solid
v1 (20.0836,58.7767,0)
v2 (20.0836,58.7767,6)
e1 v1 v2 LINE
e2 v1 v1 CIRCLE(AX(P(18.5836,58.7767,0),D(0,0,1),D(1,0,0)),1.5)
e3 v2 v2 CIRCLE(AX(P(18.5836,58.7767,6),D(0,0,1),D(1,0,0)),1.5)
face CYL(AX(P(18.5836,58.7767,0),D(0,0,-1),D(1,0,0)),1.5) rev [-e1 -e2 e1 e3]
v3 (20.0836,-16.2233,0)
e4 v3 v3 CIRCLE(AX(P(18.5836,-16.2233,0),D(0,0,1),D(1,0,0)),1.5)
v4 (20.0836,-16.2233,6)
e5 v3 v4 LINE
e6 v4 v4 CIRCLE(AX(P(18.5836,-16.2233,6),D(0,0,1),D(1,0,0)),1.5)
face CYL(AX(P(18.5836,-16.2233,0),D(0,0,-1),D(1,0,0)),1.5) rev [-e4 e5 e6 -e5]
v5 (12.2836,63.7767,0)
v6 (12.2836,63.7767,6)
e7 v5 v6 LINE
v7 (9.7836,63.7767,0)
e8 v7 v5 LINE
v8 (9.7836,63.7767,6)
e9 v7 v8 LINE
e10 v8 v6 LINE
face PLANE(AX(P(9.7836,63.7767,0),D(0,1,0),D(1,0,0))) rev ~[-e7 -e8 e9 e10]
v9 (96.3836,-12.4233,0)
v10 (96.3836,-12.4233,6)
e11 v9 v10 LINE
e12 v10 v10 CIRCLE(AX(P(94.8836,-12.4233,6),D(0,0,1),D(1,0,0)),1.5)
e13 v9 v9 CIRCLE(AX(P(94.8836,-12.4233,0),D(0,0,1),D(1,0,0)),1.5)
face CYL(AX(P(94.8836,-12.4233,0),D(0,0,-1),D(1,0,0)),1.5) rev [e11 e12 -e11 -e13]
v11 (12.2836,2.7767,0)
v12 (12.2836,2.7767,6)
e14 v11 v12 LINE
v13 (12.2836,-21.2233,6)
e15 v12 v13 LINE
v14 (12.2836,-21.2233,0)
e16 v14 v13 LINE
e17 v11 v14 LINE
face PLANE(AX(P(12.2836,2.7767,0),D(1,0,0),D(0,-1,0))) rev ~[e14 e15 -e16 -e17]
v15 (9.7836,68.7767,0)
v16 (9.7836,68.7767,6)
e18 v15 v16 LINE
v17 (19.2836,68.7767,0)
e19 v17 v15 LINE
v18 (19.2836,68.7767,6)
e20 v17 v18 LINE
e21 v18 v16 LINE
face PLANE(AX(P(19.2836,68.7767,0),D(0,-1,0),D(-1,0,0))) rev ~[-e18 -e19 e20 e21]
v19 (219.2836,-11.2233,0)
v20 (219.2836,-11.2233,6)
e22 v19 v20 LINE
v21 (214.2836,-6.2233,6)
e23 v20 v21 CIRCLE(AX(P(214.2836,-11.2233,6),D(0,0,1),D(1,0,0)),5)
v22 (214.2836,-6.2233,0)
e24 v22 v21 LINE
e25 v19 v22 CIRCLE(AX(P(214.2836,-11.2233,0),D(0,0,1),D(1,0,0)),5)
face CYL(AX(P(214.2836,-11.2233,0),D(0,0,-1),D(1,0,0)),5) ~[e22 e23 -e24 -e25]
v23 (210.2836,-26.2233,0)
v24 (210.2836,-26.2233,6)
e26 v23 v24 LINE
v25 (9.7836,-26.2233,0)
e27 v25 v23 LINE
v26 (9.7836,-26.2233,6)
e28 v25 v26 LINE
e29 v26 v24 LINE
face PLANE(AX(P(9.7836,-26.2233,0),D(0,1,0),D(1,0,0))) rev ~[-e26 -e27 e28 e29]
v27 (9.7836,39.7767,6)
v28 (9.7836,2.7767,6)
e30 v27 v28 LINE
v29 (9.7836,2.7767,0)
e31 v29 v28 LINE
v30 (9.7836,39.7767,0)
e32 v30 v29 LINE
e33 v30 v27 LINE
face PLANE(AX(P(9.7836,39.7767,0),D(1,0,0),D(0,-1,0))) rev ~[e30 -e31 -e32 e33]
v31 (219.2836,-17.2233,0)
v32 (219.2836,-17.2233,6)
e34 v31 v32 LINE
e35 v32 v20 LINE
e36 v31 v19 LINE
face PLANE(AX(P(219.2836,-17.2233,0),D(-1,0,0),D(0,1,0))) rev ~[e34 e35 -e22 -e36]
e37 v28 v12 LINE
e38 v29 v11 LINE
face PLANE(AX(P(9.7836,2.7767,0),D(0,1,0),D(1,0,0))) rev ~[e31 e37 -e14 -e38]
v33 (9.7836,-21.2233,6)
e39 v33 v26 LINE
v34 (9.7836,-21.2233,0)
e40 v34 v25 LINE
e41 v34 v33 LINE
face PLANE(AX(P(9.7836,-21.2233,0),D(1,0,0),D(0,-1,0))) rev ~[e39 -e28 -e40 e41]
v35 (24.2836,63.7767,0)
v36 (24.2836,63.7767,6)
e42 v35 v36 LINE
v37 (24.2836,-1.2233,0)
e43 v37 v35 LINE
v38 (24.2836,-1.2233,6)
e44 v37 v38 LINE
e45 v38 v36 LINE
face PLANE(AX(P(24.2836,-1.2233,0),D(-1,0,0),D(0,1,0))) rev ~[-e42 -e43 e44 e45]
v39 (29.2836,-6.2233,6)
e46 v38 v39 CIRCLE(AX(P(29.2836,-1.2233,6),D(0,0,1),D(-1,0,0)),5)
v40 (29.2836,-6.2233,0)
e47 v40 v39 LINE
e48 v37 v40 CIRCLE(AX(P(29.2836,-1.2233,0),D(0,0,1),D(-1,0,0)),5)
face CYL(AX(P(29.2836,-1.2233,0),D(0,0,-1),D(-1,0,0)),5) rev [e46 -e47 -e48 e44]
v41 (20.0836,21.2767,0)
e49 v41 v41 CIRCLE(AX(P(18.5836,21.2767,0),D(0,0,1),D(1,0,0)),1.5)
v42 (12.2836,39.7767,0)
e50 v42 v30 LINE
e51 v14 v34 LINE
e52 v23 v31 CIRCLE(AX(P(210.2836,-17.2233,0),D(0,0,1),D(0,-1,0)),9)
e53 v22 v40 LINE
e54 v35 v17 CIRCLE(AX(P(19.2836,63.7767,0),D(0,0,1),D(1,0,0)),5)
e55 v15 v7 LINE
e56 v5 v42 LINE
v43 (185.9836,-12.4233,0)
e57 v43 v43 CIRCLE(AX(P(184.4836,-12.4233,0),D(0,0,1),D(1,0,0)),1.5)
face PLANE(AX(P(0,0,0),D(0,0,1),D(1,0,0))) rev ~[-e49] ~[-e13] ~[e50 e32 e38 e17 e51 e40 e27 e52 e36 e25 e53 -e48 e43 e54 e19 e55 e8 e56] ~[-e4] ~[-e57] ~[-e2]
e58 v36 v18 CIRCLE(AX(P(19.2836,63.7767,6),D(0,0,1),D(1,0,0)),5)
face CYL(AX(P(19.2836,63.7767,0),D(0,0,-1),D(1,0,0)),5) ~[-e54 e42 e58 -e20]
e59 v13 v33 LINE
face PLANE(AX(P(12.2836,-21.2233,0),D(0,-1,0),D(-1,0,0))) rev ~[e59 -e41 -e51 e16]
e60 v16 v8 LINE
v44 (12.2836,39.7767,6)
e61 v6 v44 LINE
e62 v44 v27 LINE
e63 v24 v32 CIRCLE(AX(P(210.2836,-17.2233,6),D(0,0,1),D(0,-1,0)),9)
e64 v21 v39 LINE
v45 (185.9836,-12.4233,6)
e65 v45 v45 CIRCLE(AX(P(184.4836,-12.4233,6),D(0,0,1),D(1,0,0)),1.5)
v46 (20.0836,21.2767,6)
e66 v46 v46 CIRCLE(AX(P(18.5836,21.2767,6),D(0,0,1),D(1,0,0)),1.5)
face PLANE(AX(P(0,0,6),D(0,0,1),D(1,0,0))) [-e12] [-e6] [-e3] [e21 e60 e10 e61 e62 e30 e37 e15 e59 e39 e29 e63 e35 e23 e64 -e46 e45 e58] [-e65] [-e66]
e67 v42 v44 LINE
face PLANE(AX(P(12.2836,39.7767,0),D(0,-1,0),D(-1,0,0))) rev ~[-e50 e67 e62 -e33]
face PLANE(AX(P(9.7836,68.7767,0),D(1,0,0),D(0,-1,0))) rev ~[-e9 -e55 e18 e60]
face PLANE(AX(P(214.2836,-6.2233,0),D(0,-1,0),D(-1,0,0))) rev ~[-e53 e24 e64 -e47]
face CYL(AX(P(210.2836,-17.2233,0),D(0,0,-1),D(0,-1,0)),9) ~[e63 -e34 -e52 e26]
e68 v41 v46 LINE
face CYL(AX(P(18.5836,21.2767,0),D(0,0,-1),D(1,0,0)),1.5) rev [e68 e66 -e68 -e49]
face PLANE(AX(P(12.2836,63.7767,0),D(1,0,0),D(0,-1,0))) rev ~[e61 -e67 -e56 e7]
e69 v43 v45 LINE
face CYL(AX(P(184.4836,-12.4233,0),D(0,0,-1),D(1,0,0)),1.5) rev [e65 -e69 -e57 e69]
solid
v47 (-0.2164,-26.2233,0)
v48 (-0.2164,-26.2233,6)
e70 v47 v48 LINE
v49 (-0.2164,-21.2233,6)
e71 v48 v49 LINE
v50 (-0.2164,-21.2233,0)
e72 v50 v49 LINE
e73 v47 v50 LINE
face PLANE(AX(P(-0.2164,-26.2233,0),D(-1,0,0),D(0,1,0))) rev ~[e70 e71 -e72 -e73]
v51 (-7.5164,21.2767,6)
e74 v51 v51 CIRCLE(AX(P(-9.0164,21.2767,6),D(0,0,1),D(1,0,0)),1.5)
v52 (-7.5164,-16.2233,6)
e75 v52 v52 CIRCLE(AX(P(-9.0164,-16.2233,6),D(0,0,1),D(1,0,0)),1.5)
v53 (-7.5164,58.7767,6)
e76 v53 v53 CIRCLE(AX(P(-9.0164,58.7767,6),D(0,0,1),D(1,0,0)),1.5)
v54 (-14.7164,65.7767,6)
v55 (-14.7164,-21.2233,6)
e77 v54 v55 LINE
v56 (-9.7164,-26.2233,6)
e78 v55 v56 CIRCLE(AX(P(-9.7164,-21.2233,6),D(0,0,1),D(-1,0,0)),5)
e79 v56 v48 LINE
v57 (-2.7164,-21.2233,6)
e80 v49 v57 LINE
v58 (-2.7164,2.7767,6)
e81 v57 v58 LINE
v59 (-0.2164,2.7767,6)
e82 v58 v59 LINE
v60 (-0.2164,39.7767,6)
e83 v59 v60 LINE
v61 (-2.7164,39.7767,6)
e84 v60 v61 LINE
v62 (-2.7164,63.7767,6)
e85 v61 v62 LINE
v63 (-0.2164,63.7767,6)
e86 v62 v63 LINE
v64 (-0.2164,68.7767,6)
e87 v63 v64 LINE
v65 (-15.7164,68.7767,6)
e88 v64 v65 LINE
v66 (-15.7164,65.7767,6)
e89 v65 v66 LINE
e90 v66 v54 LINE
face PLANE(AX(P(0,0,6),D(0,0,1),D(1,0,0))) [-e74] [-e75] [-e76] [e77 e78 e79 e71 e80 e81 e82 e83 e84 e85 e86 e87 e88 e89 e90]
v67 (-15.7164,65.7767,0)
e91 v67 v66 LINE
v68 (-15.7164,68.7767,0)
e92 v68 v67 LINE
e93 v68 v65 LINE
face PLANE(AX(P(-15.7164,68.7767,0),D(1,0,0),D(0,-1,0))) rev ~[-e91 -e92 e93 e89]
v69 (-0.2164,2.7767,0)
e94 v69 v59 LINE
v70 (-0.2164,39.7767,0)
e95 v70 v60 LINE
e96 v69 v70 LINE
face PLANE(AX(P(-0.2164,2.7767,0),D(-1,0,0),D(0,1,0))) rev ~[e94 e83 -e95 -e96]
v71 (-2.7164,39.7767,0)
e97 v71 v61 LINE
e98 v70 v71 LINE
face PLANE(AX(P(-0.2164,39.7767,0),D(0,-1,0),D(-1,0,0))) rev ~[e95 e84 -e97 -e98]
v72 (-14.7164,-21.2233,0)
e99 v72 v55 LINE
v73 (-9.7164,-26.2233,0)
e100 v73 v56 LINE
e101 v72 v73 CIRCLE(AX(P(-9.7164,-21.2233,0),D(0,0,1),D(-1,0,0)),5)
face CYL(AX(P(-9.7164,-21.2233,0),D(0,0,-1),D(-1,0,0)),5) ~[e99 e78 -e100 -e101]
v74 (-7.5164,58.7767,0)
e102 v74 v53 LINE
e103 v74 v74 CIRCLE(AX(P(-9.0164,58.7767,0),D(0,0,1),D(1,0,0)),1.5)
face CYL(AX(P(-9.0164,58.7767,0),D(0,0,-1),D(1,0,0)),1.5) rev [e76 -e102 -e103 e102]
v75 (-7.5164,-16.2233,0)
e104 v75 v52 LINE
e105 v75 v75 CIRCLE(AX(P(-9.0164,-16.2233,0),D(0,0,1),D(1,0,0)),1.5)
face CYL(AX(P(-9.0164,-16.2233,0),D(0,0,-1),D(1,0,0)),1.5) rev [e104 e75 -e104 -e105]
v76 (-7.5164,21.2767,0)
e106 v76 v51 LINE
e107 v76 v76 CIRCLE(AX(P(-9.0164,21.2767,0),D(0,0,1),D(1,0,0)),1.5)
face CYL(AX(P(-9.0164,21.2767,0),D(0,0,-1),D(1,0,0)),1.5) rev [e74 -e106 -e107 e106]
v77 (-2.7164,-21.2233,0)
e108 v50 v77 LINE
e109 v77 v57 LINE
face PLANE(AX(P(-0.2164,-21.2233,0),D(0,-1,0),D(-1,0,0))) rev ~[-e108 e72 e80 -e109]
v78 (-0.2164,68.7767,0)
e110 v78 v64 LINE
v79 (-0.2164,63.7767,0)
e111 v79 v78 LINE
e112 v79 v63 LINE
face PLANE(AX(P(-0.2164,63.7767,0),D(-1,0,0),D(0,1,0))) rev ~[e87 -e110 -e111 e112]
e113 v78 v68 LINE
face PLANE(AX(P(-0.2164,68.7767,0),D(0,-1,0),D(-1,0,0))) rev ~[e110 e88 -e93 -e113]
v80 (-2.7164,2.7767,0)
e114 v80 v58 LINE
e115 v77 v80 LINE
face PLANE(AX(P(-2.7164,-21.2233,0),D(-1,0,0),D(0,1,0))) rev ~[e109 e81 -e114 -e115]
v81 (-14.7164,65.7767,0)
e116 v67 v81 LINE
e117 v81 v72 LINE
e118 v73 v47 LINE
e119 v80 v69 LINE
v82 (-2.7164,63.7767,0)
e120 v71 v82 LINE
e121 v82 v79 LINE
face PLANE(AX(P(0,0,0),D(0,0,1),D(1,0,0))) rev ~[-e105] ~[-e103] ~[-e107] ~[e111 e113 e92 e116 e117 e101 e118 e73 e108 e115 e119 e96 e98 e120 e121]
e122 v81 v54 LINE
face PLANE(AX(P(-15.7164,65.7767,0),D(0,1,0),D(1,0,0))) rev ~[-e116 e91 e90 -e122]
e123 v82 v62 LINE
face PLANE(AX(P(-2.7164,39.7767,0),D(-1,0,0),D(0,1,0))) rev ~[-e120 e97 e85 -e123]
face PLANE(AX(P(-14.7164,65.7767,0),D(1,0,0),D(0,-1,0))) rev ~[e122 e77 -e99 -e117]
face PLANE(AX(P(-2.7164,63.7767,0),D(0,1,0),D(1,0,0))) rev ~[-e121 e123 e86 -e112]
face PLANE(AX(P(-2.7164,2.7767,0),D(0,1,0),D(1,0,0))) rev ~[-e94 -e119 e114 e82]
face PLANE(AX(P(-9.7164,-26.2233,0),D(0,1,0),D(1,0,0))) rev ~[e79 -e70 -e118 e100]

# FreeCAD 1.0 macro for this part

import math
import FreeCAD as App
import Part
import Sketcher

V = App.Vector

doc = App.newDocument("Part")
body = doc.addObject("PartDesign::Body", "Body")
body.AllowCompound = True

# Sketch on XY plane
sketch1 = body.newObject("Sketcher::SketchObject", "Sketch")
sketch1.AttachmentSupport = (doc.getObject("XY_Plane"), [""])
sketch1.MapMode = "FlatFace"
sketch1.addGeometry([
    Part.LineSegment(V(9.8, -26.2, 0), V(210.3, -26.2, 0)),  # 0
    Part.ArcOfCircle(Part.Circle(V(210.3, -17.2, 0), V(0, 0, 1), 9), math.radians(-90), math.radians(0)),  # 1
    Part.LineSegment(V(219.3, -17.2, 0), V(219.3, -11.2, 0)),  # 2
    Part.ArcOfCircle(Part.Circle(V(214.3, -11.2, 0), V(0, 0, 1), 5), math.radians(0), math.radians(90)),  # 3
    Part.LineSegment(V(214.3, -6.2, 0), V(29.3, -6.2, 0)),  # 4
    Part.ArcOfCircle(Part.Circle(V(29.3, -1.2, 0), V(0, 0, 1), 5), math.radians(180), math.radians(270)),  # 5
    Part.LineSegment(V(24.3, -1.2, 0), V(24.3, 63.8, 0)),  # 6
    Part.ArcOfCircle(Part.Circle(V(19.3, 63.8, 0), V(0, 0, 1), 5), math.radians(0), math.radians(90)),  # 7
    Part.LineSegment(V(19.3, 68.8, 0), V(9.8, 68.8, 0)),  # 8
    Part.LineSegment(V(9.8, 68.8, 0), V(9.8, 63.8, 0)),  # 9
    Part.LineSegment(V(9.8, 63.8, 0), V(12.3, 63.8, 0)),  # 10
    Part.LineSegment(V(12.3, 63.8, 0), V(12.3, 39.8, 0)),  # 11
    Part.LineSegment(V(12.3, 39.8, 0), V(9.8, 39.8, 0)),  # 12
    Part.LineSegment(V(9.8, 39.8, 0), V(9.8, 2.8, 0)),  # 13
    Part.LineSegment(V(9.8, 2.8, 0), V(12.3, 2.8, 0)),  # 14
    Part.LineSegment(V(12.3, 2.8, 0), V(12.3, -21.2, 0)),  # 15
    Part.LineSegment(V(12.3, -21.2, 0), V(9.8, -21.2, 0)),  # 16
    Part.LineSegment(V(9.8, -21.2, 0), V(9.8, -26.2, 0)),  # 17
    Part.Circle(V(18.6, -16.2, 0), V(0, 0, 1), 1.5),  # 18
    Part.Circle(V(94.9, -12.4, 0), V(0, 0, 1), 1.5),  # 19
    Part.Circle(V(184.5, -12.4, 0), V(0, 0, 1), 1.5),  # 20
    Part.Circle(V(18.6, 21.3, 0), V(0, 0, 1), 1.5),  # 21
    Part.Circle(V(18.6, 58.8, 0), V(0, 0, 1), 1.5),  # 22
    Part.LineSegment(V(-14.7, 65.8, 0), V(-14.7, -21.2, 0)),  # 23
    Part.ArcOfCircle(Part.Circle(V(-9.7, -21.2, 0), V(0, 0, 1), 5), math.radians(180), math.radians(270)),  # 24
    Part.LineSegment(V(-9.7, -26.2, 0), V(-0.2, -26.2, 0)),  # 25
    Part.LineSegment(V(-0.2, -26.2, 0), V(-0.2, -21.2, 0)),  # 26
    Part.LineSegment(V(-0.2, -21.2, 0), V(-2.7, -21.2, 0)),  # 27
    Part.LineSegment(V(-2.7, -21.2, 0), V(-2.7, 2.8, 0)),  # 28
    Part.LineSegment(V(-2.7, 2.8, 0), V(-0.2, 2.8, 0)),  # 29
    Part.LineSegment(V(-0.2, 2.8, 0), V(-0.2, 39.8, 0)),  # 30
    Part.LineSegment(V(-0.2, 39.8, 0), V(-2.7, 39.8, 0)),  # 31
    Part.LineSegment(V(-2.7, 39.8, 0), V(-2.7, 63.8, 0)),  # 32
    Part.LineSegment(V(-2.7, 63.8, 0), V(-0.2, 63.8, 0)),  # 33
    Part.LineSegment(V(-0.2, 63.8, 0), V(-0.2, 68.8, 0)),  # 34
    Part.LineSegment(V(-0.2, 68.8, 0), V(-15.7, 68.8, 0)),  # 35
    Part.LineSegment(V(-15.7, 68.8, 0), V(-15.7, 65.8, 0)),  # 36
    Part.LineSegment(V(-15.7, 65.8, 0), V(-14.7, 65.8, 0)),  # 37
    Part.Circle(V(-9, -16.2, 0), V(0, 0, 1), 1.5),  # 38
    Part.Circle(V(-9, 21.3, 0), V(0, 0, 1), 1.5),  # 39
    Part.Circle(V(-9, 58.8, 0), V(0, 0, 1), 1.5),  # 40
], False)
sketch1.addConstraint([
    Sketcher.Constraint("Tangent", 0, 2, 1, 1),
    Sketcher.Constraint("Tangent", 1, 2, 2, 1),
    Sketcher.Constraint("Tangent", 2, 2, 3, 1),
    Sketcher.Constraint("Tangent", 3, 2, 4, 1),
    Sketcher.Constraint("Tangent", 4, 2, 5, 2),
    Sketcher.Constraint("Tangent", 5, 1, 6, 1),
    Sketcher.Constraint("Tangent", 6, 2, 7, 1),
    Sketcher.Constraint("Tangent", 7, 2, 8, 1),
    Sketcher.Constraint("Coincident", 8, 2, 9, 1),
    Sketcher.Constraint("Coincident", 9, 2, 10, 1),
    Sketcher.Constraint("Coincident", 10, 2, 11, 1),
    Sketcher.Constraint("Coincident", 11, 2, 12, 1),
    Sketcher.Constraint("Coincident", 12, 2, 13, 1),
    Sketcher.Constraint("Coincident", 13, 2, 14, 1),
    Sketcher.Constraint("Coincident", 14, 2, 15, 1),
    Sketcher.Constraint("Coincident", 15, 2, 16, 1),
    Sketcher.Constraint("Coincident", 16, 2, 17, 1),
    Sketcher.Constraint("Coincident", 17, 2, 0, 1),
    Sketcher.Constraint("Tangent", 23, 2, 24, 1),
    Sketcher.Constraint("Tangent", 24, 2, 25, 1),
    Sketcher.Constraint("Coincident", 25, 2, 26, 1),
    Sketcher.Constraint("Coincident", 26, 2, 27, 1),
    Sketcher.Constraint("Coincident", 27, 2, 28, 1),
    Sketcher.Constraint("Coincident", 28, 2, 29, 1),
    Sketcher.Constraint("Coincident", 29, 2, 30, 1),
    Sketcher.Constraint("Coincident", 30, 2, 31, 1),
    Sketcher.Constraint("Coincident", 31, 2, 32, 1),
    Sketcher.Constraint("Coincident", 32, 2, 33, 1),
    Sketcher.Constraint("Coincident", 33, 2, 34, 1),
    Sketcher.Constraint("Coincident", 34, 2, 35, 1),
    Sketcher.Constraint("Coincident", 35, 2, 36, 1),
    Sketcher.Constraint("Coincident", 36, 2, 37, 1),
    Sketcher.Constraint("Coincident", 37, 2, 23, 1),
    Sketcher.Constraint("Horizontal", 0),
    Sketcher.Constraint("Vertical", 2),
    Sketcher.Constraint("Horizontal", 4),
    Sketcher.Constraint("Vertical", 6),
    Sketcher.Constraint("Horizontal", 8),
    Sketcher.Constraint("Vertical", 9),
    Sketcher.Constraint("Horizontal", 10),
    Sketcher.Constraint("Vertical", 11),
    Sketcher.Constraint("Horizontal", 12),
    Sketcher.Constraint("Vertical", 13),
    Sketcher.Constraint("Horizontal", 14),
    Sketcher.Constraint("Vertical", 15),
    Sketcher.Constraint("Horizontal", 16),
    Sketcher.Constraint("Vertical", 17),
    Sketcher.Constraint("Vertical", 23),
    Sketcher.Constraint("Horizontal", 25),
    Sketcher.Constraint("Vertical", 26),
    Sketcher.Constraint("Horizontal", 27),
    Sketcher.Constraint("Vertical", 28),
    Sketcher.Constraint("Horizontal", 29),
    Sketcher.Constraint("Vertical", 30),
    Sketcher.Constraint("Horizontal", 31),
    Sketcher.Constraint("Vertical", 32),
    Sketcher.Constraint("Horizontal", 33),
    Sketcher.Constraint("Vertical", 34),
    Sketcher.Constraint("Horizontal", 35),
    Sketcher.Constraint("Vertical", 36),
    Sketcher.Constraint("Horizontal", 37),
    Sketcher.Constraint("Equal", 3, 5),
    Sketcher.Constraint("Equal", 5, 7),
    Sketcher.Constraint("Equal", 18, 19),
    Sketcher.Constraint("Equal", 19, 20),
    Sketcher.Constraint("Equal", 20, 21),
    Sketcher.Constraint("Equal", 21, 22),
    Sketcher.Constraint("Equal", 7, 24),
    Sketcher.Constraint("Equal", 22, 38),
    Sketcher.Constraint("Equal", 38, 39),
    Sketcher.Constraint("Equal", 39, 40),
    Sketcher.Constraint("Horizontal", 19, 3, 20, 3),
    Sketcher.Constraint("Horizontal", 18, 3, 38, 3),
    Sketcher.Constraint("Horizontal", 21, 3, 39, 3),
    Sketcher.Constraint("Horizontal", 22, 3, 40, 3),
    Sketcher.Constraint("Horizontal", 6, 2, 9, 2),
    Sketcher.Constraint("Horizontal", 24, 3, 15, 2),
    Sketcher.Constraint("Horizontal", 17, 2, 24, 2),
    Sketcher.Constraint("Horizontal", 23, 2, 26, 2),
    Sketcher.Constraint("Horizontal", 14, 2, 28, 2),
    Sketcher.Constraint("Horizontal", 12, 2, 30, 2),
    Sketcher.Constraint("Horizontal", 10, 2, 32, 2),
    Sketcher.Constraint("Horizontal", 8, 2, 34, 2),
    Sketcher.Constraint("Vertical", 18, 3, 21, 3),
    Sketcher.Constraint("Vertical", 21, 3, 22, 3),
    Sketcher.Constraint("Vertical", 38, 3, 39, 3),
    Sketcher.Constraint("Vertical", 39, 3, 40, 3),
    Sketcher.Constraint("Vertical", 9, 2, 12, 2),
    Sketcher.Constraint("Vertical", 11, 2, 14, 2),
    Sketcher.Constraint("Vertical", 13, 2, 16, 2),
    Sketcher.Constraint("Vertical", 26, 2, 29, 2),
    Sketcher.Constraint("Vertical", 28, 2, 31, 2),
    Sketcher.Constraint("Vertical", 30, 2, 33, 2),
    Sketcher.Constraint("Equal", 8, 25),
    Sketcher.Constraint("Equal", 16, 27),
    Sketcher.Constraint("Equal", 11, 15),
    Sketcher.Constraint("Diameter", 18, 3.0),
    Sketcher.Constraint("Radius", 1, 9.0),
    Sketcher.Constraint("Radius", 3, 5.0),
    Sketcher.Constraint("DistanceX", 4, 2, 4, 1, 185.0),
    Sketcher.Constraint("DistanceX", 37, 1, 37, 2, 1.0),
    Sketcher.Constraint("DistanceY", 2, 1, 2, 2, 6.0),
    Sketcher.Constraint("DistanceY", 6, 1, 6, 2, 65.0),
    Sketcher.Constraint("DistanceY", 11, 2, 11, 1, 24.0),
    Sketcher.Constraint("DistanceY", 23, 2, 23, 1, 87.0),
    Sketcher.Constraint("DistanceX", 0, 1, 0, 2, 200.5),
    Sketcher.Constraint("DistanceX", 10, 1, 10, 2, 2.5),
    Sketcher.Constraint("DistanceY", 18, 3, 5, 3, 15.0),
    Sketcher.Constraint("DistanceY", 22, 3, 7, 3, 5.0),
    Sketcher.Constraint("DistanceX", 24, 3, 5, 3, 39.0),
    Sketcher.Constraint("DistanceX", 18, 3, 5, 3, 10.7),
    Sketcher.Constraint("DistanceX", 5, 3, 19, 3, 65.6),
    Sketcher.Constraint("DistanceY", 19, 3, 5, 3, 11.2),
    Sketcher.Constraint("DistanceX", 20, 3, 1, 3, 25.8),
    Sketcher.Constraint("DistanceY", 5, 3, 21, 3, 22.5),
    Sketcher.Constraint("DistanceX", 24, 3, 38, 3, 0.7),
    Sketcher.Constraint("DistanceX", -1, 1, 1, 3, 210.2836),
    Sketcher.Constraint("DistanceY", 1, 3, -1, 1, 17.2233),
])
pad1 = body.newObject("PartDesign::Pad", "Pad")
pad1.Profile = sketch1
pad1.Length = 6

doc.recompute()
